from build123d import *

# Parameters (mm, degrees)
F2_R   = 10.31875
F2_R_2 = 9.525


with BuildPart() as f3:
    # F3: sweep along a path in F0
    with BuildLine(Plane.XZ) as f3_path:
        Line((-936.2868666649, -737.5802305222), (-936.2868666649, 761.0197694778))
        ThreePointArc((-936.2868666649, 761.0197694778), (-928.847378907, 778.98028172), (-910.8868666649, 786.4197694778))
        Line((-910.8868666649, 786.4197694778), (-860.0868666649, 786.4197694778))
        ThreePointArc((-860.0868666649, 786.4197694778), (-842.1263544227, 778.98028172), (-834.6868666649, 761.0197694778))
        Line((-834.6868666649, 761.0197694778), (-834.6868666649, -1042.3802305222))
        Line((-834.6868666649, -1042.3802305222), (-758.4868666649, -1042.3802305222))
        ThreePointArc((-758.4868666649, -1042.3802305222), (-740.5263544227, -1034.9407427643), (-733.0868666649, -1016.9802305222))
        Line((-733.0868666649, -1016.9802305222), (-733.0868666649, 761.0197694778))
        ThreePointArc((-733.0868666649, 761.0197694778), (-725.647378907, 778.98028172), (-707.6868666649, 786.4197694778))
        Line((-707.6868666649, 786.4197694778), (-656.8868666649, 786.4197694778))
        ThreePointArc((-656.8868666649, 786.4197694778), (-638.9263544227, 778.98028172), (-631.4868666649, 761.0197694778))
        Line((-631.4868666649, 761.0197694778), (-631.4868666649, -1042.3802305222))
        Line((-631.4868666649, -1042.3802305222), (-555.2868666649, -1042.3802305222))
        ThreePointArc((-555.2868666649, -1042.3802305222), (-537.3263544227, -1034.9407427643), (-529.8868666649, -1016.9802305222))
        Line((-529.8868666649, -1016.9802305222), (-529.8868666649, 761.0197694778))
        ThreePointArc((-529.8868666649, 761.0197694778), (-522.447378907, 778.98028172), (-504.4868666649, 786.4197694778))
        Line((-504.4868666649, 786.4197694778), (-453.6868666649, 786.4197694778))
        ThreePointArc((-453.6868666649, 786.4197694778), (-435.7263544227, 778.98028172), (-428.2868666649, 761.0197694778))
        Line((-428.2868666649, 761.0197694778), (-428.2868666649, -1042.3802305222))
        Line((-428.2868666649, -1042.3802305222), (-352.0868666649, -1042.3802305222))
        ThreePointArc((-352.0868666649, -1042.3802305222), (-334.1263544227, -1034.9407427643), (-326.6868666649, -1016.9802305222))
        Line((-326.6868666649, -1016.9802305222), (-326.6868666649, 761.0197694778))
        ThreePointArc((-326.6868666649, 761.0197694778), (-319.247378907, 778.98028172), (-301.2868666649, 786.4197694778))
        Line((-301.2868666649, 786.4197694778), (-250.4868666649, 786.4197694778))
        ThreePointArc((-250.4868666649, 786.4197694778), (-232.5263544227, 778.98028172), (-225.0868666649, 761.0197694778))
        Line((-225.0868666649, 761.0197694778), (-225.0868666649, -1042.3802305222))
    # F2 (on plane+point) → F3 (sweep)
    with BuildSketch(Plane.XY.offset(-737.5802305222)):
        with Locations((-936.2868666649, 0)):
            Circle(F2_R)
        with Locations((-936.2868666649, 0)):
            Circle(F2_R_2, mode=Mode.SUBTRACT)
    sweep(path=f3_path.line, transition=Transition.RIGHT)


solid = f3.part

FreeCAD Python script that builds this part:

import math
import FreeCAD as App
import Part
import Sketcher
from FreeCAD import Vector
Q = App.Units.Quantity

doc = App.newDocument("Part")
body = doc.addObject("PartDesign::Body", "Body")

sketch1 = doc.addObject("Sketcher::SketchObject", "Sketch")
body.addObject(sketch1)
sketch1.AttachmentSupport = (doc.XY_Plane, [""])
sketch1.MapMode = "FlatFace"
sketch1.AttachmentOffset = App.Placement(Vector(0, 0, -737.580231), App.Rotation())
sketch1.addGeometry(Part.Circle(Vector(-936, 0, 0), Vector(0, 0, 1), 10), False)
sketch1.addGeometry(Part.Circle(Vector(-936, 0, 0), Vector(0, 0, 1), 10), False)
sketch1.addConstraint(Sketcher.Constraint("Coincident", 1, 3, 0, 3))
sketch1.addConstraint(Sketcher.Constraint("PointOnObject", 0, 3, -1))
sketch1.addConstraint(Sketcher.Constraint("Diameter", 1, Q("0.75 in")))
sketch1.addConstraint(Sketcher.Constraint("Diameter", 0, Q("0.8125 in")))
sketch1.addConstraint(Sketcher.Constraint("DistanceX", 0, 3, -1, 1, Q("936.286867 mm")))

sketch2 = doc.addObject("Sketcher::SketchObject", "Sketch001")
body.addObject(sketch2)
sketch2.AttachmentSupport = (doc.XZ_Plane, [""])
sketch2.MapMode = "FlatFace"
sketch2.addGeometry(Part.LineSegment(Vector(-936, -738, 0), Vector(-936, 761, 0)), False)
sketch2.addGeometry(Part.ArcOfCircle(Part.Circle(Vector(-911, 761, 0), Vector(0, 0, 1), 25), math.radians(90), math.radians(180)), False)
sketch2.addGeometry(Part.LineSegment(Vector(-911, 786, 0), Vector(-860, 786, 0)), False)
sketch2.addGeometry(Part.ArcOfCircle(Part.Circle(Vector(-860, 761, 0), Vector(0, 0, 1), 25), math.radians(0), math.radians(90)), False)
sketch2.addGeometry(Part.LineSegment(Vector(-835, 761, 0), Vector(-835, -1042, 0)), False)
sketch2.addGeometry(Part.LineSegment(Vector(-835, -1042, 0), Vector(-758, -1042, 0)), False)
sketch2.addGeometry(Part.ArcOfCircle(Part.Circle(Vector(-758, -1017, 0), Vector(0, 0, 1), 25), math.radians(-90), math.radians(0)), False)
sketch2.addGeometry(Part.LineSegment(Vector(-733, -1017, 0), Vector(-733, 761, 0)), False)
sketch2.addGeometry(Part.ArcOfCircle(Part.Circle(Vector(-708, 761, 0), Vector(0, 0, 1), 25), math.radians(90), math.radians(180)), False)
sketch2.addGeometry(Part.LineSegment(Vector(-708, 786, 0), Vector(-657, 786, 0)), False)
sketch2.addGeometry(Part.ArcOfCircle(Part.Circle(Vector(-657, 761, 0), Vector(0, 0, 1), 25), math.radians(0), math.radians(90)), False)
sketch2.addGeometry(Part.LineSegment(Vector(-631, 761, 0), Vector(-631, -1042, 0)), False)
sketch2.addGeometry(Part.LineSegment(Vector(-631, -1042, 0), Vector(-555, -1042, 0)), False)
sketch2.addGeometry(Part.ArcOfCircle(Part.Circle(Vector(-555, -1017, 0), Vector(0, 0, 1), 25), math.radians(-90), math.radians(0)), False)
sketch2.addGeometry(Part.LineSegment(Vector(-530, -1017, 0), Vector(-530, 761, 0)), False)
sketch2.addGeometry(Part.ArcOfCircle(Part.Circle(Vector(-504, 761, 0), Vector(0, 0, 1), 25), math.radians(90), math.radians(180)), False)
sketch2.addGeometry(Part.LineSegment(Vector(-504, 786, 0), Vector(-454, 786, 0)), False)
sketch2.addGeometry(Part.ArcOfCircle(Part.Circle(Vector(-454, 761, 0), Vector(0, 0, 1), 25), math.radians(0), math.radians(90)), False)
sketch2.addGeometry(Part.LineSegment(Vector(-428, 761, 0), Vector(-428, -1042, 0)), False)
sketch2.addGeometry(Part.LineSegment(Vector(-428, -1042, 0), Vector(-352, -1042, 0)), False)
sketch2.addGeometry(Part.ArcOfCircle(Part.Circle(Vector(-352, -1017, 0), Vector(0, 0, 1), 25), math.radians(-90), math.radians(0)), False)
sketch2.addGeometry(Part.LineSegment(Vector(-327, -1017, 0), Vector(-327, 761, 0)), False)
sketch2.addGeometry(Part.ArcOfCircle(Part.Circle(Vector(-301, 761, 0), Vector(0, 0, 1), 25), math.radians(90), math.radians(180)), False)
sketch2.addGeometry(Part.LineSegment(Vector(-301, 786, 0), Vector(-250, 786, 0)), False)
sketch2.addGeometry(Part.ArcOfCircle(Part.Circle(Vector(-250, 761, 0), Vector(0, 0, 1), 25), math.radians(0), math.radians(90)), False)
sketch2.addGeometry(Part.LineSegment(Vector(-225, 761, 0), Vector(-225, -1042, 0)), False)
sketch2.addConstraint(Sketcher.Constraint("Tangent", 0, 2, 1, 2))
sketch2.addConstraint(Sketcher.Constraint("Tangent", 1, 1, 2, 1))
sketch2.addConstraint(Sketcher.Constraint("Tangent", 2, 2, 3, 2))
sketch2.addConstraint(Sketcher.Constraint("Tangent", 3, 1, 4, 1))
sketch2.addConstraint(Sketcher.Constraint("Coincident", 4, 2, 5, 1))
sketch2.addConstraint(Sketcher.Constraint("Tangent", 5, 2, 6, 1))
sketch2.addConstraint(Sketcher.Constraint("Tangent", 6, 2, 7, 1))
sketch2.addConstraint(Sketcher.Constraint("Tangent", 7, 2, 8, 2))
sketch2.addConstraint(Sketcher.Constraint("Tangent", 8, 1, 9, 1))
sketch2.addConstraint(Sketcher.Constraint("Tangent", 9, 2, 10, 2))
sketch2.addConstraint(Sketcher.Constraint("Tangent", 10, 1, 11, 1))
sketch2.addConstraint(Sketcher.Constraint("Coincident", 11, 2, 12, 1))
sketch2.addConstraint(Sketcher.Constraint("Tangent", 12, 2, 13, 1))
sketch2.addConstraint(Sketcher.Constraint("Tangent", 13, 2, 14, 1))
sketch2.addConstraint(Sketcher.Constraint("Tangent", 14, 2, 15, 2))
sketch2.addConstraint(Sketcher.Constraint("Tangent", 15, 1, 16, 1))
sketch2.addConstraint(Sketcher.Constraint("Tangent", 16, 2, 17, 2))
sketch2.addConstraint(Sketcher.Constraint("Tangent", 17, 1, 18, 1))
sketch2.addConstraint(Sketcher.Constraint("Coincident", 18, 2, 19, 1))
sketch2.addConstraint(Sketcher.Constraint("Tangent", 19, 2, 20, 1))
sketch2.addConstraint(Sketcher.Constraint("Tangent", 20, 2, 21, 1))
sketch2.addConstraint(Sketcher.Constraint("Tangent", 21, 2, 22, 2))
sketch2.addConstraint(Sketcher.Constraint("Tangent", 22, 1, 23, 1))
sketch2.addConstraint(Sketcher.Constraint("Tangent", 23, 2, 24, 2))
sketch2.addConstraint(Sketcher.Constraint("Tangent", 24, 1, 25, 1))
sketch2.addConstraint(Sketcher.Constraint("Vertical", 0))
sketch2.addConstraint(Sketcher.Constraint("Horizontal", 2))
sketch2.addConstraint(Sketcher.Constraint("Vertical", 4))
sketch2.addConstraint(Sketcher.Constraint("Horizontal", 5))
sketch2.addConstraint(Sketcher.Constraint("Vertical", 7))
sketch2.addConstraint(Sketcher.Constraint("Horizontal", 9))
sketch2.addConstraint(Sketcher.Constraint("Vertical", 11))
sketch2.addConstraint(Sketcher.Constraint("Horizontal", 12))
sketch2.addConstraint(Sketcher.Constraint("Vertical", 14))
sketch2.addConstraint(Sketcher.Constraint("Horizontal", 16))
sketch2.addConstraint(Sketcher.Constraint("Vertical", 18))
sketch2.addConstraint(Sketcher.Constraint("Horizontal", 19))
sketch2.addConstraint(Sketcher.Constraint("Vertical", 21))
sketch2.addConstraint(Sketcher.Constraint("Horizontal", 23))
sketch2.addConstraint(Sketcher.Constraint("Vertical", 25))
sketch2.addConstraint(Sketcher.Constraint("Equal", 1, 3))
sketch2.addConstraint(Sketcher.Constraint("Equal", 3, 6))
sketch2.addConstraint(Sketcher.Constraint("Equal", 6, 8))
sketch2.addConstraint(Sketcher.Constraint("Equal", 8, 10))
sketch2.addConstraint(Sketcher.Constraint("Equal", 10, 13))
sketch2.addConstraint(Sketcher.Constraint("Equal", 13, 15))
sketch2.addConstraint(Sketcher.Constraint("Equal", 15, 17))
sketch2.addConstraint(Sketcher.Constraint("Equal", 17, 20))
sketch2.addConstraint(Sketcher.Constraint("Equal", 20, 22))
sketch2.addConstraint(Sketcher.Constraint("Equal", 22, 24))
sketch2.addConstraint(Sketcher.Constraint("Horizontal", 3, 3, 8, 3))
sketch2.addConstraint(Sketcher.Constraint("Horizontal", 6, 3, 13, 3))
sketch2.addConstraint(Sketcher.Constraint("Horizontal", 10, 3, 15, 3))
sketch2.addConstraint(Sketcher.Constraint("Horizontal", 13, 3, 20, 3))
sketch2.addConstraint(Sketcher.Constraint("Horizontal", 17, 3, 22, 3))
sketch2.addConstraint(Sketcher.Constraint("Horizontal", 19, 2, 25, 2))
sketch2.addConstraint(Sketcher.Constraint("Equal", 2, 9))
sketch2.addConstraint(Sketcher.Constraint("Equal", 5, 12))
sketch2.addConstraint(Sketcher.Constraint("Equal", 9, 16))
sketch2.addConstraint(Sketcher.Constraint("Equal", 12, 19))
sketch2.addConstraint(Sketcher.Constraint("Equal", 16, 23))
sketch2.addConstraint(Sketcher.Constraint("Radius", 1, Q("1 in")))
sketch2.addConstraint(Sketcher.Constraint("DistanceX", 2, 1, 2, 2, Q("2 in")))
sketch2.addConstraint(Sketcher.Constraint("DistanceX", 5, 1, 5, 2, Q("3 in")))
sketch2.addConstraint(Sketcher.Constraint("DistanceY", 0, 1, 0, 2, Q("59 in")))
sketch2.addConstraint(Sketcher.Constraint("DistanceY", 4, 2, 4, 1, Q("71 in")))
sketch2.addConstraint(Sketcher.Constraint("DistanceY", -1, 1, 1, 3, Q("761.019769 mm")))
sketch2.addConstraint(Sketcher.Constraint("DistanceX", 1, 3, -1, 1, Q("910.886867 mm")))
doc.recompute()

additivepipe = doc.addObject("PartDesign::AdditivePipe", "AdditivePipe")
body.addObject(additivepipe)
additivepipe.Profile = sketch1
additivepipe.Spine = (sketch2, ["Edge1", "Edge2", "Edge3", "Edge4", "Edge5", "Edge6", "Edge7", "Edge8", "Edge9", "Edge10", "Edge11", "Edge12", "Edge13", "Edge14", "Edge15", "Edge16", "Edge17", "Edge18", "Edge19", "Edge20", "Edge21", "Edge22", "Edge23", "Edge24", "Edge25", "Edge26"])
additivepipe.Transition = "Right corner"

doc.recompute()
